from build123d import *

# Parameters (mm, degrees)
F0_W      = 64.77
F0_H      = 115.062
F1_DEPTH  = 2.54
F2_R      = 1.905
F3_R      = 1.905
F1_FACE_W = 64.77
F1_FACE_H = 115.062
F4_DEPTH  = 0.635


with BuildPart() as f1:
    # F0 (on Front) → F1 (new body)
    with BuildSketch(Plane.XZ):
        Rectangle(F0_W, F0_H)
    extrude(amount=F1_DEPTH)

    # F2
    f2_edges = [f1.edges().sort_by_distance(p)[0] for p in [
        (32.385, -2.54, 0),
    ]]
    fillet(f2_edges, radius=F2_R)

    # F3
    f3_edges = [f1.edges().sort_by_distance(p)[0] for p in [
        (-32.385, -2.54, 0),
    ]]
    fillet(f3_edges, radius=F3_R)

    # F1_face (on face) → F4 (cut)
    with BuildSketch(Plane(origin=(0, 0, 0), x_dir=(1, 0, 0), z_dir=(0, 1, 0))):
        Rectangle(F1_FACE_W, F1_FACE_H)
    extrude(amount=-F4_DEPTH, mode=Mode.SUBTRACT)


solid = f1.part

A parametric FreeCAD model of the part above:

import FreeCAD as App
import Part
import Sketcher

V = App.Vector
Q = App.Units.Quantity


def edges_at(feature, points):
    """Names of the edges that pass closest to the given points."""
    edges = feature.Shape.Edges
    near = lambda p: min(range(len(edges)), key=lambda i: edges[i].distToShape(Part.Vertex(*p))[0])
    return sorted({f"Edge{near(p) + 1}" for p in points})


def add_polygon(sketch, points):
    """Adds a closed chain of lines whose ends are joined by coincident constraints."""
    first, n = sketch.GeometryCount, len(points)
    for a, b in zip(points, points[1:] + points[:1]):
        sketch.addGeometry(Part.LineSegment(App.Vector(*a, 0), App.Vector(*b, 0)), False)
    for i in range(n):
        sketch.addConstraint(Sketcher.Constraint("Coincident", first + i, 2, first + (i + 1) % n, 1))

doc = App.newDocument("Part")
body = doc.addObject("PartDesign::Body", "Body")

# Sketch on XZ plane
sketch1 = body.newObject("Sketcher::SketchObject", "Sketch")
sketch1.AttachmentSupport = (doc.getObject("XZ_Plane"), [""])
sketch1.MapMode = "FlatFace"
add_polygon(sketch1, [(-32, 58), (-32, -58), (32, -58), (32, 58)])  # lines 0-3
sketch1.addConstraint([
    Sketcher.Constraint("Vertical", 0),
    Sketcher.Constraint("Horizontal", 1),
    Sketcher.Constraint("Vertical", 2),
    Sketcher.Constraint("Horizontal", 3),
    Sketcher.Constraint("Symmetric", 0, 2, 2, 2, -1, 1),
    Sketcher.Constraint("DistanceX", 1, 1, 1, 2, Q("2.55 in")),
    Sketcher.Constraint("DistanceY", 0, 2, 0, 1, Q("4.53 in")),
])
pad1 = body.newObject("PartDesign::Pad", "Pad")
pad1.Profile = sketch1
pad1.Length = Q("0.1 in")
doc.recompute()

fillet = body.newObject("PartDesign::Fillet", "Fillet")
fillet.Base = (pad1, edges_at(pad1, [(32.385, -2.54, 0)]))
fillet.Radius = Q("0.075 in")
doc.recompute()

fillet2 = body.newObject("PartDesign::Fillet", "Fillet001")
fillet2.Base = (fillet, edges_at(fillet, [(-32.385, -2.54, 0)]))
fillet2.Radius = Q("0.075 in")

# Sketch on XZ plane
sketch2 = body.newObject("Sketcher::SketchObject", "Sketch001")
sketch2.AttachmentSupport = (doc.getObject("XZ_Plane"), [""])
sketch2.MapMode = "FlatFace"
add_polygon(sketch2, [(-32, -58), (-32, 58), (32, 58), (32, -58)])  # lines 0-3
sketch2.addConstraint([
    Sketcher.Constraint("Vertical", 0),
    Sketcher.Constraint("Horizontal", 1),
    Sketcher.Constraint("Vertical", 2),
    Sketcher.Constraint("Horizontal", 3),
    Sketcher.Constraint("Symmetric", 0, 2, 2, 2, -1, 1),
    Sketcher.Constraint("DistanceX", 1, 1, 1, 2, Q("2.55 in")),
    Sketcher.Constraint("DistanceY", 0, 1, 0, 2, Q("4.53 in")),
])
pocket1 = body.newObject("PartDesign::Pocket", "Pocket")
pocket1.Profile = sketch2
pocket1.Length = Q("0.025 in")
pocket1.Reversed = True

doc.recompute()
